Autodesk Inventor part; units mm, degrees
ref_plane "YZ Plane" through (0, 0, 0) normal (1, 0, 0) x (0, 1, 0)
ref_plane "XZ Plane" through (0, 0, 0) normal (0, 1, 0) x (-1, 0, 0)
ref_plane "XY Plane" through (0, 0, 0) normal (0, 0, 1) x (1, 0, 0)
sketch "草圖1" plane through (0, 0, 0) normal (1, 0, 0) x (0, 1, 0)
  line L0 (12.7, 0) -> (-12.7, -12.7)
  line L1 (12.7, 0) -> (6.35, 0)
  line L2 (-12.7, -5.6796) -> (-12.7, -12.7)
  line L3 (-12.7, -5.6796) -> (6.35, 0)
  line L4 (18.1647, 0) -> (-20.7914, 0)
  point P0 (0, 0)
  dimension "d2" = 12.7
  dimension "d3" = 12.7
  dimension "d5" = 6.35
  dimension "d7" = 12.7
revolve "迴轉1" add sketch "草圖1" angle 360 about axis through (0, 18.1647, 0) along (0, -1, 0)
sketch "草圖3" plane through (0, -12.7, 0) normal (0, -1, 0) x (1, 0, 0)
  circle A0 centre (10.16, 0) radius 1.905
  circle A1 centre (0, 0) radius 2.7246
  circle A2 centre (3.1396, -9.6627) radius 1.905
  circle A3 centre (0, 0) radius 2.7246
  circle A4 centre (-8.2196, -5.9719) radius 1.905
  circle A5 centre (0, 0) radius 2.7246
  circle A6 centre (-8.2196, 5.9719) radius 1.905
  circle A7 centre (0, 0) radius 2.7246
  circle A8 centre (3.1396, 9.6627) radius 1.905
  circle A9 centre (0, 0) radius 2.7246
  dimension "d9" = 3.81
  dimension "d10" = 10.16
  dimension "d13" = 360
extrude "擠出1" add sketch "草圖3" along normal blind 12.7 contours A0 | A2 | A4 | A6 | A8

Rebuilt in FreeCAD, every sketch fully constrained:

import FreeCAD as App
import Part
import Sketcher
Q = App.Units.Quantity


def add_polygon(sketch, points):
    """Adds a closed chain of lines whose ends are joined by coincident constraints."""
    first, n = sketch.GeometryCount, len(points)
    for a, b in zip(points, points[1:] + points[:1]):
        sketch.addGeometry(Part.LineSegment(App.Vector(*a, 0), App.Vector(*b, 0)), False)
    for i in range(n):
        sketch.addConstraint(Sketcher.Constraint("Coincident", first + i, 2, first + (i + 1) % n, 1))

doc = App.newDocument("Part")
body = doc.addObject("PartDesign::Body", "Body")

# Sketch on YZ plane
sketch1 = body.newObject("Sketcher::SketchObject", "Sketch")
sketch1.AttachmentSupport = (doc.getObject("YZ_Plane"), [""])
sketch1.MapMode = "FlatFace"
add_polygon(sketch1, [(-13, -13), (13, 0), (6, 0), (-13, -6)])  # lines 0-3
sketch1.addConstraint([
    Sketcher.Constraint("Horizontal", 1),
    Sketcher.Constraint("Vertical", 3),
    Sketcher.Constraint("PointOnObject", 0, 2, -1),
    Sketcher.Constraint("DistanceX", 1, 2, 1, 1, Q("0.25 in")),
    Sketcher.Constraint("DistanceX", -1, 1, 0, 2, Q("0.5 in")),
    Sketcher.Constraint("DistanceX", 2, 2, -1, 1, Q("0.5 in")),
    Sketcher.Constraint("DistanceY", 3, 2, -1, 1, Q("0.5 in")),
    Sketcher.Constraint("DistanceY", 3, 2, 3, 1, Q("0.2764 in")),
])
revolution = body.newObject("PartDesign::Revolution", "Revolution")
revolution.Profile = sketch1
revolution.ReferenceAxis = (sketch1, ["H_Axis"])
revolution.Angle = 360

# Sketch on XZ plane
sketch2 = body.newObject("Sketcher::SketchObject", "Sketch001")
sketch2.AttachmentSupport = (doc.getObject("XZ_Plane"), [""])
sketch2.MapMode = "FlatFace"
sketch2.AttachmentOffset = App.Placement(App.Vector(0, 0, 0.5 * 25.4), App.Rotation())
sketch2.addGeometry([
    Part.Circle(App.Vector(10.2, 0, 0), App.Vector(0, 0, 1), 1.9),  # 0
    Part.Circle(App.Vector(3.1, -9.7, 0), App.Vector(0, 0, 1), 1.9),  # 1
    Part.Circle(App.Vector(-8.2, -6, 0), App.Vector(0, 0, 1), 1.9),  # 2
    Part.Circle(App.Vector(-8.2, 6, 0), App.Vector(0, 0, 1), 1.9),  # 3
    Part.Circle(App.Vector(3.1, 9.7, 0), App.Vector(0, 0, 1), 1.9),  # 4
], False)
sketch2.addConstraint([
    Sketcher.Constraint("Equal", 0, 1),
    Sketcher.Constraint("Equal", 1, 2),
    Sketcher.Constraint("Equal", 2, 3),
    Sketcher.Constraint("Equal", 3, 4),
    Sketcher.Constraint("Symmetric", 2, 3, 3, 3, -1),
    Sketcher.Constraint("Symmetric", 1, 3, 4, 3, -1),
    Sketcher.Constraint("PointOnObject", 0, 3, -1),
    Sketcher.Constraint("Diameter", 0, Q("0.15 in")),
    Sketcher.Constraint("DistanceX", -1, 1, 0, 3, Q("0.4 in")),
    Sketcher.Constraint("DistanceX", -1, 1, 1, 3, Q("0.1236 in")),
    Sketcher.Constraint("DistanceX", 2, 3, -1, 1, Q("0.3236 in")),
    Sketcher.Constraint("DistanceY", 1, 3, 2, 3, Q("0.1453 in")),
    Sketcher.Constraint("DistanceY", 1, 3, -1, 1, 9.6627),
])
pad1 = body.newObject("PartDesign::Pad", "Pad")
pad1.Profile = sketch2
pad1.Length = Q("0.5 in")

doc.recompute()
